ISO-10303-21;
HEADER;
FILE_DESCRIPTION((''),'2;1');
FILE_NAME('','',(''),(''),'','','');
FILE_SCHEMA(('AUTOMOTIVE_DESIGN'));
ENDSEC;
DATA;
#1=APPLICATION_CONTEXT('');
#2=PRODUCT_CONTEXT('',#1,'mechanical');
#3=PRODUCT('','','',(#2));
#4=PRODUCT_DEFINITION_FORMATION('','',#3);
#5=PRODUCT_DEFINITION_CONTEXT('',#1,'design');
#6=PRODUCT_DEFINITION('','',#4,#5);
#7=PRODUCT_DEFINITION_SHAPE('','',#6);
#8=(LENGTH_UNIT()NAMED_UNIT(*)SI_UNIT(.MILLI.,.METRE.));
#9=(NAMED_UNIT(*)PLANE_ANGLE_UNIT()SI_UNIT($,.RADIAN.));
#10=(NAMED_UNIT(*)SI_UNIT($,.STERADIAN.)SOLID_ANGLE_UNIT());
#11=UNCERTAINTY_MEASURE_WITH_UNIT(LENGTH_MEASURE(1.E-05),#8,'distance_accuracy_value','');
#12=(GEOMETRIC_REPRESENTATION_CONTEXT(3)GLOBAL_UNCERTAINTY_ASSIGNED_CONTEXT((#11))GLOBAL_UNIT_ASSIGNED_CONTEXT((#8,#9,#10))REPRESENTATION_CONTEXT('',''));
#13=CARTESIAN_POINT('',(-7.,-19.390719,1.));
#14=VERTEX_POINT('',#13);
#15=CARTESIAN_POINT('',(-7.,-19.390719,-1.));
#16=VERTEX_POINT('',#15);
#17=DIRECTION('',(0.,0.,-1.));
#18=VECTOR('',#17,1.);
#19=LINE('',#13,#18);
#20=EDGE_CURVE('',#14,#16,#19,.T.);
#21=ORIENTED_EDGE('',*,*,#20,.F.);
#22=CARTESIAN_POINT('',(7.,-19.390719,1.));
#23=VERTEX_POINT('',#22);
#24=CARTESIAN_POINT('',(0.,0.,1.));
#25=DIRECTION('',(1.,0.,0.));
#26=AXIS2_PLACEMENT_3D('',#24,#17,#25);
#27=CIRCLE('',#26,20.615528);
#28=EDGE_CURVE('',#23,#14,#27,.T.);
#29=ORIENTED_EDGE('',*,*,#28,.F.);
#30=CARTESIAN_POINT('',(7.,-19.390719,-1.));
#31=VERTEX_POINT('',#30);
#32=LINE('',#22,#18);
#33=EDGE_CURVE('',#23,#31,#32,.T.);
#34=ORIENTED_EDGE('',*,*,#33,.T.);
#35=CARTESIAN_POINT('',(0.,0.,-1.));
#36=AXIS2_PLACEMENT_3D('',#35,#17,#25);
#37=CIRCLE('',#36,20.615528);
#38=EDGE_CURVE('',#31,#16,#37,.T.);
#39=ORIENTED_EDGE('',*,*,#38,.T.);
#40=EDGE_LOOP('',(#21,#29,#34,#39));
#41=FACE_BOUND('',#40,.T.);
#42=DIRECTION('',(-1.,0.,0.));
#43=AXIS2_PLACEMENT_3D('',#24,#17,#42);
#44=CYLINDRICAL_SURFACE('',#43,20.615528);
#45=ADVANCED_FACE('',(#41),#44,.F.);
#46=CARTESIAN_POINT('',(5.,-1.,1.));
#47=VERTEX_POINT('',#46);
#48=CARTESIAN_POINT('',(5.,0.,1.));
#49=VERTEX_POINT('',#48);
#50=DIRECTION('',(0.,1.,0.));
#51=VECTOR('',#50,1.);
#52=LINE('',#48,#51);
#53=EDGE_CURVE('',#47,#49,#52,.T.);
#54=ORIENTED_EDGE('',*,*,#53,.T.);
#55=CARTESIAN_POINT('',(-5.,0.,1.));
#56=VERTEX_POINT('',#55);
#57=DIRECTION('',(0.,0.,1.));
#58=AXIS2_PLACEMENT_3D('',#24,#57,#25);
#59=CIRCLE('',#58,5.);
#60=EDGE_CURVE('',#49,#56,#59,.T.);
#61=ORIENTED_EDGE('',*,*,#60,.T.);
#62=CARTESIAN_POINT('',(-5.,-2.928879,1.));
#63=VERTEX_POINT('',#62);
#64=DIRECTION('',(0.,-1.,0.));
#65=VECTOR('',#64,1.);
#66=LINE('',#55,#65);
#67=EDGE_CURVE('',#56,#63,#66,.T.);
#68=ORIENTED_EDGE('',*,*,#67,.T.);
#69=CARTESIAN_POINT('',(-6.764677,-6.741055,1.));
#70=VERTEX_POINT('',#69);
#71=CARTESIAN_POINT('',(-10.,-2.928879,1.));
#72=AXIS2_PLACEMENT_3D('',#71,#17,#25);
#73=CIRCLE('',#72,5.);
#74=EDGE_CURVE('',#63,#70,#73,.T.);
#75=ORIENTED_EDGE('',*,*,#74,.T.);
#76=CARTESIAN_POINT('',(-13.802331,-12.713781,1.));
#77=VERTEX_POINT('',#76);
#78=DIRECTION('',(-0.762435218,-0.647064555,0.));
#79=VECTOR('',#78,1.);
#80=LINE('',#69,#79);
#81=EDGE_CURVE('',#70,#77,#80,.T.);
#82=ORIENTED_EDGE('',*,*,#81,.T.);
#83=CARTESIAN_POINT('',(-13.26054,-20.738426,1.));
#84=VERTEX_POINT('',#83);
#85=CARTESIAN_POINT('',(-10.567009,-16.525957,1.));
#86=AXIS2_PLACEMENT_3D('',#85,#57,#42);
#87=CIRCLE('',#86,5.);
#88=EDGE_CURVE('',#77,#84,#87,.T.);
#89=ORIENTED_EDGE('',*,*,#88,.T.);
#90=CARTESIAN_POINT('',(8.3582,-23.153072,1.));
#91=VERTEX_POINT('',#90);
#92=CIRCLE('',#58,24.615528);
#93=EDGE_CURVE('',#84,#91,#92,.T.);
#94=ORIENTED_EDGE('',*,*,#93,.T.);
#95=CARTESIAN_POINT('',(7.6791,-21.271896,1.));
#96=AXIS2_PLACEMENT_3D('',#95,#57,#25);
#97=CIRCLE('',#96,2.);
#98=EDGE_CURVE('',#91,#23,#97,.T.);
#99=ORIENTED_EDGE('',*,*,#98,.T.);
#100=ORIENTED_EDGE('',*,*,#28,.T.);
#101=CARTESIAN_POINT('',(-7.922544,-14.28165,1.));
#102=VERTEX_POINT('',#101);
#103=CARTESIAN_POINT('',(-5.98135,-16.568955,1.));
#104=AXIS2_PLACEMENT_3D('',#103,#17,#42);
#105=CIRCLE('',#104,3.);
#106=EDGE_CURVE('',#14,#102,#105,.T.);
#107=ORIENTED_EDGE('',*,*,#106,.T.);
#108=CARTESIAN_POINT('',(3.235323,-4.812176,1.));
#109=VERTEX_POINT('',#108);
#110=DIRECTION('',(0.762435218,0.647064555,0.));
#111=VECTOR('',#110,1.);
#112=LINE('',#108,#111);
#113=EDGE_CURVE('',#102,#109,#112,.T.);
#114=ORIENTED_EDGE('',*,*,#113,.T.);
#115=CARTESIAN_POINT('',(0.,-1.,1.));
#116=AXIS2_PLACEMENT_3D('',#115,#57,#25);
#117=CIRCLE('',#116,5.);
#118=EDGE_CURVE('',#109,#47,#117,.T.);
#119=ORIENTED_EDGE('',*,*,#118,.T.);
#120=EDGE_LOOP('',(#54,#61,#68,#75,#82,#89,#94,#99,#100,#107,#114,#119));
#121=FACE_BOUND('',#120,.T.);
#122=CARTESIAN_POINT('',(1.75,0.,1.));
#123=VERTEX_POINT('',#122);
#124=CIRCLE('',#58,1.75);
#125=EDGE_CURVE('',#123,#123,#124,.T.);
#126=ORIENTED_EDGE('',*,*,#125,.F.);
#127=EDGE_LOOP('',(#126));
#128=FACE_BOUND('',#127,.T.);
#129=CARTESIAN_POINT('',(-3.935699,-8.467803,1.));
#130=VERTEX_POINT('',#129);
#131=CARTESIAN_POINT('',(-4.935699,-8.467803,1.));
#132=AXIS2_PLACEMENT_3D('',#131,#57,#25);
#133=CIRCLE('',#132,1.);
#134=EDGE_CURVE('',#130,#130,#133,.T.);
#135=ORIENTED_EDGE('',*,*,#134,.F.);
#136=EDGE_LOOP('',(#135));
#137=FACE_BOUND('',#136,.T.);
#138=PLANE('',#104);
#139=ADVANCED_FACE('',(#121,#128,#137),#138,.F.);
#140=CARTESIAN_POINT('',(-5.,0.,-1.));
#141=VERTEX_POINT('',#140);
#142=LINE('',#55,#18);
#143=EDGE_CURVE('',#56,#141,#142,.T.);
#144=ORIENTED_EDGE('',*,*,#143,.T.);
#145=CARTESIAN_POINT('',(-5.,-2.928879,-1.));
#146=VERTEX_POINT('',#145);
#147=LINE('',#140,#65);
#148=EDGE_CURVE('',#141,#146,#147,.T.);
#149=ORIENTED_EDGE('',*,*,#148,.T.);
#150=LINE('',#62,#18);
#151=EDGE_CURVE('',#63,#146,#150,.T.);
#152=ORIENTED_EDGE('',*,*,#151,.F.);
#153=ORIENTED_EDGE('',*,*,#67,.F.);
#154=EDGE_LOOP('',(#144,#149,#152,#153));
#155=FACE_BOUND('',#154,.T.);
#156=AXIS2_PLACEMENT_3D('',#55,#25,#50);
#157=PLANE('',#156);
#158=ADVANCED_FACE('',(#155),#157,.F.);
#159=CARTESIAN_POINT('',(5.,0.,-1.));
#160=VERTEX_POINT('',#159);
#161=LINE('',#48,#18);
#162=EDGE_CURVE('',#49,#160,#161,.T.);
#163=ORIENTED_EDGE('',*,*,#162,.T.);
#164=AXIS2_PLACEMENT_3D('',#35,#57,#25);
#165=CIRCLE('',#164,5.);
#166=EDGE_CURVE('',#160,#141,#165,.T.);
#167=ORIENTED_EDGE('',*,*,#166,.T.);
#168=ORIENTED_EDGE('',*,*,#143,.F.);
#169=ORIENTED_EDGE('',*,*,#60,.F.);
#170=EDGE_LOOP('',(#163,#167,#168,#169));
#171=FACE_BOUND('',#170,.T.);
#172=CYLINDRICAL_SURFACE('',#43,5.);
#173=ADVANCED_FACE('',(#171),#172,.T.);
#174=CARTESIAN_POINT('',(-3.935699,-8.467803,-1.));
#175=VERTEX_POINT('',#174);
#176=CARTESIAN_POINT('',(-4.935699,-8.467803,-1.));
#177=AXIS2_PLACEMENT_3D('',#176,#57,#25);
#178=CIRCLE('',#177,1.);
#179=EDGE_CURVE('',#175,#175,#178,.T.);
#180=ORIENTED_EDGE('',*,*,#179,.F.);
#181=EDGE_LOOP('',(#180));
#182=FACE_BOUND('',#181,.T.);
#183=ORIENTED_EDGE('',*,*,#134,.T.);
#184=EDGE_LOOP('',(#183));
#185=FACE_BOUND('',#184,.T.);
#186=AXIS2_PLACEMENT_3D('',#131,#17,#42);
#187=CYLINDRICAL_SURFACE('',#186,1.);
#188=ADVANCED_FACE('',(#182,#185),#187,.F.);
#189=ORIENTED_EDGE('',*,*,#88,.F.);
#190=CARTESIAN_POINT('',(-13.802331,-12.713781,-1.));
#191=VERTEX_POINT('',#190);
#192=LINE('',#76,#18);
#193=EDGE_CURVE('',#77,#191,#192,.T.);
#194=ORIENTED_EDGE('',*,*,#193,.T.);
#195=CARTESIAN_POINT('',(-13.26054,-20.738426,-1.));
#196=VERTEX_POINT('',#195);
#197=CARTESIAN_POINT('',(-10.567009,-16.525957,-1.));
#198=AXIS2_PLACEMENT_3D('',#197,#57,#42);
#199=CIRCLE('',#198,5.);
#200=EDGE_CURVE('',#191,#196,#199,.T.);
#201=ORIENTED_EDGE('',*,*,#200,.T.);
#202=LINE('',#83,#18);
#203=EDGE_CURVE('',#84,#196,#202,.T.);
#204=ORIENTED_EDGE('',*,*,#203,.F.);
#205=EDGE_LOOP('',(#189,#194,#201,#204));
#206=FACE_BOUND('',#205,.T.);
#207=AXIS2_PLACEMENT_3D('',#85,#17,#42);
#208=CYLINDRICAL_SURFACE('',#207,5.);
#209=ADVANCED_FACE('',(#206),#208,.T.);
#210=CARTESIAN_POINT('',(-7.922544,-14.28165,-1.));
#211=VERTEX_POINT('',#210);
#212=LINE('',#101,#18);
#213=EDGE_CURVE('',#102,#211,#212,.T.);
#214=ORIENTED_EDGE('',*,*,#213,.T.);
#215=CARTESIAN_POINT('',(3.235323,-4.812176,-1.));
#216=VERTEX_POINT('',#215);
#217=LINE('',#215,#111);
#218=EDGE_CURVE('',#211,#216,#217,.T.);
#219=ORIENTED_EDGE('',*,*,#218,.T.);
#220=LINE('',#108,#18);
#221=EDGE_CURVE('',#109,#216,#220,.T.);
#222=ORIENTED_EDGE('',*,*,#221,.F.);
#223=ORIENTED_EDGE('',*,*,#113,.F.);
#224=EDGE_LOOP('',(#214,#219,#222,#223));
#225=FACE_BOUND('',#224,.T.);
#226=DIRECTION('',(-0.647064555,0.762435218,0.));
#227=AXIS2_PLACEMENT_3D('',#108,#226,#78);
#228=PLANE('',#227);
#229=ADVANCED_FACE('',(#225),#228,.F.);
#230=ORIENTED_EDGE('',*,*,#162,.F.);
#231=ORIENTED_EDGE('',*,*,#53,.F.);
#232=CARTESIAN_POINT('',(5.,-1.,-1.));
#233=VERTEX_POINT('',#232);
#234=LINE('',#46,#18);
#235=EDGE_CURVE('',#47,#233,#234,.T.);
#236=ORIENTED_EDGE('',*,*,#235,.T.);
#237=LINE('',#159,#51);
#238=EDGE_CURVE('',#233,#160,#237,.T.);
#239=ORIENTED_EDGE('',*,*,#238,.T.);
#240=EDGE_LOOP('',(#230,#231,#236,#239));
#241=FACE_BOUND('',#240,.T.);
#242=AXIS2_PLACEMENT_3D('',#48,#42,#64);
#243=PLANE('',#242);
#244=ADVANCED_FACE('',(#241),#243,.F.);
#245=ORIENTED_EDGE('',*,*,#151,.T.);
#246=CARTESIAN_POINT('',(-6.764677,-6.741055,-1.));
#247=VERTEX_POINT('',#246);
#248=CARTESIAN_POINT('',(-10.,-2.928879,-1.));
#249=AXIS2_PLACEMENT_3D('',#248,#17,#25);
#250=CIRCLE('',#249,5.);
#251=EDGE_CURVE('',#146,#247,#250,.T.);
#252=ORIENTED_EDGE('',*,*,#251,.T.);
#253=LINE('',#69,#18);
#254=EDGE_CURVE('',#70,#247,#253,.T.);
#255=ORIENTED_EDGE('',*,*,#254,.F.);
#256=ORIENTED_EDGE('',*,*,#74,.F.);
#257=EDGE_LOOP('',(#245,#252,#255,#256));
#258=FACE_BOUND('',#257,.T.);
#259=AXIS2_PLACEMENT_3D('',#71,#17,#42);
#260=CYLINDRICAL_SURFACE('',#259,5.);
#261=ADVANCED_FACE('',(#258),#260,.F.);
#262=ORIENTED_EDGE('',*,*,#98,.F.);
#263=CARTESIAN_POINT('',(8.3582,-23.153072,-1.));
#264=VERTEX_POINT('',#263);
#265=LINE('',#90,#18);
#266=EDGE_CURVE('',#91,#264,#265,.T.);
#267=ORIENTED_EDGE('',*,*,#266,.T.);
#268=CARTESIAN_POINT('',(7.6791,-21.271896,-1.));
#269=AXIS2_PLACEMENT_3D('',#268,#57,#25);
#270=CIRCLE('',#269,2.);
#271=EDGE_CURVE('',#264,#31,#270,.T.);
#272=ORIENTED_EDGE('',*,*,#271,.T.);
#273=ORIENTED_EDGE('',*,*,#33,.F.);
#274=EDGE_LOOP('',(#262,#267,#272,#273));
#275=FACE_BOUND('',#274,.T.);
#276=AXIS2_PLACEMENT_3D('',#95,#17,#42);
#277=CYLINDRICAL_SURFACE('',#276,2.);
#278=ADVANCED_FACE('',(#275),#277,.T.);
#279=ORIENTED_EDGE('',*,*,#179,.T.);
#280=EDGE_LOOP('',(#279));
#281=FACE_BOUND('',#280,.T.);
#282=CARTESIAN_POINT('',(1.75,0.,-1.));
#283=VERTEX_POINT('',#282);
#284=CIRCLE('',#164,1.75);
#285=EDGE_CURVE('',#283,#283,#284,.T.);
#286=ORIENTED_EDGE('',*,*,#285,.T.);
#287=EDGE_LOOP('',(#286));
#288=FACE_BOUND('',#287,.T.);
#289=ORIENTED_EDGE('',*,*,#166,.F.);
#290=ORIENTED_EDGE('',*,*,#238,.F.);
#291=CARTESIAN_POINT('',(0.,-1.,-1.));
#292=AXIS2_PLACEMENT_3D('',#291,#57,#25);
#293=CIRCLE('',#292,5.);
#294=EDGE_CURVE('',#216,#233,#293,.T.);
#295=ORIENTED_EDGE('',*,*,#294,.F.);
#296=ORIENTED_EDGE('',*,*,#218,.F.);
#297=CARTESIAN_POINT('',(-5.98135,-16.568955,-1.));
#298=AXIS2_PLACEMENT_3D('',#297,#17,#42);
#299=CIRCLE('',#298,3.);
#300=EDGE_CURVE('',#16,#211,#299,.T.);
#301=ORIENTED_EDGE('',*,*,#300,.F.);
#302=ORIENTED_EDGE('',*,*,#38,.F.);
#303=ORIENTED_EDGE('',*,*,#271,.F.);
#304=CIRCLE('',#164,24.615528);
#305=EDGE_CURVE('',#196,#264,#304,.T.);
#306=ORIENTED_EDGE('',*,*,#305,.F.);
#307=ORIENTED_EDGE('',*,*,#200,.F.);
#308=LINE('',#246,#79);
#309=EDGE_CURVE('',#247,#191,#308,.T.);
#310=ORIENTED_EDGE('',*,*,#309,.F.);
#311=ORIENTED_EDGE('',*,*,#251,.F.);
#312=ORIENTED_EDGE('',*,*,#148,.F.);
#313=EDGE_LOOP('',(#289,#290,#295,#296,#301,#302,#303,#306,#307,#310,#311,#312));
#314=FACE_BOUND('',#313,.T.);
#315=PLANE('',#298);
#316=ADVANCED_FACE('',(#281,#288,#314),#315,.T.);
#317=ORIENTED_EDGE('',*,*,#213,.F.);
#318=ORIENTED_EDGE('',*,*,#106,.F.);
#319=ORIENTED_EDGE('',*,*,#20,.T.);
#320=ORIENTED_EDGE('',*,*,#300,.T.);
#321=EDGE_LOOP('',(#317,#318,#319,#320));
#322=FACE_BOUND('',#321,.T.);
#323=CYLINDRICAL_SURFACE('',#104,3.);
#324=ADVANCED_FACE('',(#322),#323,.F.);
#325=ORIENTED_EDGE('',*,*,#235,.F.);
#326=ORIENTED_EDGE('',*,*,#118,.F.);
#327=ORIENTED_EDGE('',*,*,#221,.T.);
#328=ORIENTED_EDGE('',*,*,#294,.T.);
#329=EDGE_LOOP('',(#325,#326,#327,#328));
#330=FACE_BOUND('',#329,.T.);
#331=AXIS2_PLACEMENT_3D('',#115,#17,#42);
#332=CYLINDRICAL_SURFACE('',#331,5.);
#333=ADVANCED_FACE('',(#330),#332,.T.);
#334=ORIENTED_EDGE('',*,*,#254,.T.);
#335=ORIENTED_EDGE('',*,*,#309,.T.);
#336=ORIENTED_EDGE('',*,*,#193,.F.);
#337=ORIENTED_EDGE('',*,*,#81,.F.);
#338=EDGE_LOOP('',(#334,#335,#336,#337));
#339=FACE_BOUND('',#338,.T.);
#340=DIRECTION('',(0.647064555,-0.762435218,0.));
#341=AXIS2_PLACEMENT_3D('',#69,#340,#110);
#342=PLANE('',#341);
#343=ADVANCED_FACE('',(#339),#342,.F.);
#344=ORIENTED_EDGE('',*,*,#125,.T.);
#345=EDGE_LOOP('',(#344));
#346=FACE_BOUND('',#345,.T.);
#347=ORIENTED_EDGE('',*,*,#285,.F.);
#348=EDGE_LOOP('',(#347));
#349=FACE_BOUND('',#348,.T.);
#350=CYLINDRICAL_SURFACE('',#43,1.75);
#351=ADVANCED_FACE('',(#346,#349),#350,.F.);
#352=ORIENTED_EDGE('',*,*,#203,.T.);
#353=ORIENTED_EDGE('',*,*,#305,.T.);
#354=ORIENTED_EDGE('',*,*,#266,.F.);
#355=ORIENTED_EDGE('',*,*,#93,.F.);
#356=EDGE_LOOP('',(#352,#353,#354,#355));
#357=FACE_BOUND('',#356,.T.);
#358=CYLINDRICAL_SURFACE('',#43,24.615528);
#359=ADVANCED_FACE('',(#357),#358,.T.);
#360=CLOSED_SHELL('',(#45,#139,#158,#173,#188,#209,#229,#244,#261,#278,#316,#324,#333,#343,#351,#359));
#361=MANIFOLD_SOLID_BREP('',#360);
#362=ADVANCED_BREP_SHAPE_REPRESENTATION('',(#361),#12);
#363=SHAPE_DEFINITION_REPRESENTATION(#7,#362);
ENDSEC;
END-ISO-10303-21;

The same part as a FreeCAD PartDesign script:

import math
import FreeCAD as App
import Part
import Sketcher

doc = App.newDocument("Part")
body = doc.addObject("PartDesign::Body", "Body")

sketch1 = body.newObject("Sketcher::SketchObject", "Sketch")
sketch1.AttachmentSupport = (doc.getObject("XY_Plane"), [""])
sketch1.MapMode = "FlatFace"
sketch1.addGeometry(Part.LineSegment(App.Vector(-5, 0, 0), App.Vector(-5, -2.928879, 0)), False)
sketch1.addGeometry(Part.ArcOfCircle(Part.Circle(App.Vector(-10, -2.928879, 0), App.Vector(0, 0, 1), 5), math.radians(-49.679354), math.radians(0)), False)
sketch1.addGeometry(Part.LineSegment(App.Vector(-6.764677, -6.741055, 0), App.Vector(-13.802331, -12.713781, 0)), False)
sketch1.addGeometry(Part.ArcOfCircle(Part.Circle(App.Vector(-10.567009, -16.525957, 0), App.Vector(0, 0, 1), 5), math.radians(130.320646), math.radians(237.404385)), False)
sketch1.addGeometry(Part.ArcOfCircle(Part.Circle(App.Vector(0, 0, 0), App.Vector(0, 0, 1), 24.615528), math.radians(-122.595615), math.radians(-70.150548)), False)
sketch1.addGeometry(Part.ArcOfCircle(Part.Circle(App.Vector(7.6791, -21.271896, 0), App.Vector(0, 0, 1), 2), math.radians(-70.150548), math.radians(109.849452)), False)
sketch1.addGeometry(Part.ArcOfCircle(Part.Circle(App.Vector(0, 0, 0), App.Vector(0, 0, 1), 20.615528), math.radians(-109.849452), math.radians(-70.150548)), False)
sketch1.addGeometry(Part.ArcOfCircle(Part.Circle(App.Vector(-5.98135, -16.568955, 0), App.Vector(0, 0, 1), 3), math.radians(130.320646), math.radians(250.150548)), False)
sketch1.addGeometry(Part.LineSegment(App.Vector(-7.922544, -14.28165, 0), App.Vector(3.235323, -4.812176, 0)), False)
sketch1.addGeometry(Part.ArcOfCircle(Part.Circle(App.Vector(0, -1, 0), App.Vector(0, 0, 1), 5), math.radians(-49.679354), math.radians(0)), False)
sketch1.addGeometry(Part.LineSegment(App.Vector(5, -1, 0), App.Vector(5, 0, 0)), False)
sketch1.addGeometry(Part.ArcOfCircle(Part.Circle(App.Vector(0, 0, 0), App.Vector(0, 0, 1), 5), math.radians(0), math.radians(180)), False)
sketch1.addGeometry(Part.Circle(App.Vector(-4.935699, -8.467803, 0), App.Vector(0, 0, 1), 1), False)
sketch1.addGeometry(Part.Circle(App.Vector(0, 0, 0), App.Vector(0, 0, 1), 1.75), False)
sketch1.addConstraint(Sketcher.Constraint("Tangent", 0, 2, 1, 2))
sketch1.addConstraint(Sketcher.Constraint("Tangent", 1, 1, 2, 1))
sketch1.addConstraint(Sketcher.Constraint("Tangent", 2, 2, 3, 1))
sketch1.addConstraint(Sketcher.Constraint("Tangent", 3, 2, 4, 1))
sketch1.addConstraint(Sketcher.Constraint("Tangent", 4, 2, 5, 1))
sketch1.addConstraint(Sketcher.Constraint("Tangent", 5, 2, 6, 2))
sketch1.addConstraint(Sketcher.Constraint("Tangent", 6, 1, 7, 2))
sketch1.addConstraint(Sketcher.Constraint("Tangent", 7, 1, 8, 1))
sketch1.addConstraint(Sketcher.Constraint("Tangent", 8, 2, 9, 1))
sketch1.addConstraint(Sketcher.Constraint("Tangent", 9, 2, 10, 1))
sketch1.addConstraint(Sketcher.Constraint("Tangent", 10, 2, 11, 1))
sketch1.addConstraint(Sketcher.Constraint("Tangent", 11, 2, 0, 1))
sketch1.addConstraint(Sketcher.Constraint("Vertical", 0))
sketch1.addConstraint(Sketcher.Constraint("Vertical", 10))
sketch1.addConstraint(Sketcher.Constraint("Coincident", 4, 3, -1, 1))
sketch1.addConstraint(Sketcher.Constraint("Coincident", 6, 3, -1, 1))
sketch1.addConstraint(Sketcher.Constraint("Coincident", 11, 3, -1, 1))
sketch1.addConstraint(Sketcher.Constraint("Coincident", 13, 3, -1, 1))
sketch1.addConstraint(Sketcher.Constraint("Equal", 1, 3))
sketch1.addConstraint(Sketcher.Constraint("Equal", 3, 9))
sketch1.addConstraint(Sketcher.Constraint("Equal", 9, 11))
sketch1.addConstraint(Sketcher.Constraint("Parallel", 2, 8))
sketch1.addConstraint(Sketcher.Constraint("Horizontal", 5, 2, 6, 1))
sketch1.addConstraint(Sketcher.Constraint("Diameter", 12, 2.0))
sketch1.addConstraint(Sketcher.Constraint("Radius", 1, 5.0))
sketch1.addConstraint(Sketcher.Constraint("Radius", 5, 2.0))
sketch1.addConstraint(Sketcher.Constraint("Radius", 7, 3.0))
sketch1.addConstraint(Sketcher.Constraint("Diameter", 13, 3.5))
sketch1.addConstraint(Sketcher.Constraint("DistanceY", 10, 1, 10, 2, 1.0))
sketch1.addConstraint(Sketcher.Constraint("DistanceX", -1, 1, 5, 2, 7.0))
sketch1.addConstraint(Sketcher.Constraint("Radius", 4, 24.615528))
sketch1.addConstraint(Sketcher.Constraint("DistanceY", 0, 2, 0, 1, 2.928879))
sketch1.addConstraint(Sketcher.Constraint("DistanceX", 12, 3, -1, 1, 4.935699))
sketch1.addConstraint(Sketcher.Constraint("DistanceY", 2, 2, 12, 3, 4.245979))
pad1 = body.newObject("PartDesign::Pad", "Pad")
pad1.Profile = sketch1
pad1.Length = 2
pad1.Midplane = True

doc.recompute()
